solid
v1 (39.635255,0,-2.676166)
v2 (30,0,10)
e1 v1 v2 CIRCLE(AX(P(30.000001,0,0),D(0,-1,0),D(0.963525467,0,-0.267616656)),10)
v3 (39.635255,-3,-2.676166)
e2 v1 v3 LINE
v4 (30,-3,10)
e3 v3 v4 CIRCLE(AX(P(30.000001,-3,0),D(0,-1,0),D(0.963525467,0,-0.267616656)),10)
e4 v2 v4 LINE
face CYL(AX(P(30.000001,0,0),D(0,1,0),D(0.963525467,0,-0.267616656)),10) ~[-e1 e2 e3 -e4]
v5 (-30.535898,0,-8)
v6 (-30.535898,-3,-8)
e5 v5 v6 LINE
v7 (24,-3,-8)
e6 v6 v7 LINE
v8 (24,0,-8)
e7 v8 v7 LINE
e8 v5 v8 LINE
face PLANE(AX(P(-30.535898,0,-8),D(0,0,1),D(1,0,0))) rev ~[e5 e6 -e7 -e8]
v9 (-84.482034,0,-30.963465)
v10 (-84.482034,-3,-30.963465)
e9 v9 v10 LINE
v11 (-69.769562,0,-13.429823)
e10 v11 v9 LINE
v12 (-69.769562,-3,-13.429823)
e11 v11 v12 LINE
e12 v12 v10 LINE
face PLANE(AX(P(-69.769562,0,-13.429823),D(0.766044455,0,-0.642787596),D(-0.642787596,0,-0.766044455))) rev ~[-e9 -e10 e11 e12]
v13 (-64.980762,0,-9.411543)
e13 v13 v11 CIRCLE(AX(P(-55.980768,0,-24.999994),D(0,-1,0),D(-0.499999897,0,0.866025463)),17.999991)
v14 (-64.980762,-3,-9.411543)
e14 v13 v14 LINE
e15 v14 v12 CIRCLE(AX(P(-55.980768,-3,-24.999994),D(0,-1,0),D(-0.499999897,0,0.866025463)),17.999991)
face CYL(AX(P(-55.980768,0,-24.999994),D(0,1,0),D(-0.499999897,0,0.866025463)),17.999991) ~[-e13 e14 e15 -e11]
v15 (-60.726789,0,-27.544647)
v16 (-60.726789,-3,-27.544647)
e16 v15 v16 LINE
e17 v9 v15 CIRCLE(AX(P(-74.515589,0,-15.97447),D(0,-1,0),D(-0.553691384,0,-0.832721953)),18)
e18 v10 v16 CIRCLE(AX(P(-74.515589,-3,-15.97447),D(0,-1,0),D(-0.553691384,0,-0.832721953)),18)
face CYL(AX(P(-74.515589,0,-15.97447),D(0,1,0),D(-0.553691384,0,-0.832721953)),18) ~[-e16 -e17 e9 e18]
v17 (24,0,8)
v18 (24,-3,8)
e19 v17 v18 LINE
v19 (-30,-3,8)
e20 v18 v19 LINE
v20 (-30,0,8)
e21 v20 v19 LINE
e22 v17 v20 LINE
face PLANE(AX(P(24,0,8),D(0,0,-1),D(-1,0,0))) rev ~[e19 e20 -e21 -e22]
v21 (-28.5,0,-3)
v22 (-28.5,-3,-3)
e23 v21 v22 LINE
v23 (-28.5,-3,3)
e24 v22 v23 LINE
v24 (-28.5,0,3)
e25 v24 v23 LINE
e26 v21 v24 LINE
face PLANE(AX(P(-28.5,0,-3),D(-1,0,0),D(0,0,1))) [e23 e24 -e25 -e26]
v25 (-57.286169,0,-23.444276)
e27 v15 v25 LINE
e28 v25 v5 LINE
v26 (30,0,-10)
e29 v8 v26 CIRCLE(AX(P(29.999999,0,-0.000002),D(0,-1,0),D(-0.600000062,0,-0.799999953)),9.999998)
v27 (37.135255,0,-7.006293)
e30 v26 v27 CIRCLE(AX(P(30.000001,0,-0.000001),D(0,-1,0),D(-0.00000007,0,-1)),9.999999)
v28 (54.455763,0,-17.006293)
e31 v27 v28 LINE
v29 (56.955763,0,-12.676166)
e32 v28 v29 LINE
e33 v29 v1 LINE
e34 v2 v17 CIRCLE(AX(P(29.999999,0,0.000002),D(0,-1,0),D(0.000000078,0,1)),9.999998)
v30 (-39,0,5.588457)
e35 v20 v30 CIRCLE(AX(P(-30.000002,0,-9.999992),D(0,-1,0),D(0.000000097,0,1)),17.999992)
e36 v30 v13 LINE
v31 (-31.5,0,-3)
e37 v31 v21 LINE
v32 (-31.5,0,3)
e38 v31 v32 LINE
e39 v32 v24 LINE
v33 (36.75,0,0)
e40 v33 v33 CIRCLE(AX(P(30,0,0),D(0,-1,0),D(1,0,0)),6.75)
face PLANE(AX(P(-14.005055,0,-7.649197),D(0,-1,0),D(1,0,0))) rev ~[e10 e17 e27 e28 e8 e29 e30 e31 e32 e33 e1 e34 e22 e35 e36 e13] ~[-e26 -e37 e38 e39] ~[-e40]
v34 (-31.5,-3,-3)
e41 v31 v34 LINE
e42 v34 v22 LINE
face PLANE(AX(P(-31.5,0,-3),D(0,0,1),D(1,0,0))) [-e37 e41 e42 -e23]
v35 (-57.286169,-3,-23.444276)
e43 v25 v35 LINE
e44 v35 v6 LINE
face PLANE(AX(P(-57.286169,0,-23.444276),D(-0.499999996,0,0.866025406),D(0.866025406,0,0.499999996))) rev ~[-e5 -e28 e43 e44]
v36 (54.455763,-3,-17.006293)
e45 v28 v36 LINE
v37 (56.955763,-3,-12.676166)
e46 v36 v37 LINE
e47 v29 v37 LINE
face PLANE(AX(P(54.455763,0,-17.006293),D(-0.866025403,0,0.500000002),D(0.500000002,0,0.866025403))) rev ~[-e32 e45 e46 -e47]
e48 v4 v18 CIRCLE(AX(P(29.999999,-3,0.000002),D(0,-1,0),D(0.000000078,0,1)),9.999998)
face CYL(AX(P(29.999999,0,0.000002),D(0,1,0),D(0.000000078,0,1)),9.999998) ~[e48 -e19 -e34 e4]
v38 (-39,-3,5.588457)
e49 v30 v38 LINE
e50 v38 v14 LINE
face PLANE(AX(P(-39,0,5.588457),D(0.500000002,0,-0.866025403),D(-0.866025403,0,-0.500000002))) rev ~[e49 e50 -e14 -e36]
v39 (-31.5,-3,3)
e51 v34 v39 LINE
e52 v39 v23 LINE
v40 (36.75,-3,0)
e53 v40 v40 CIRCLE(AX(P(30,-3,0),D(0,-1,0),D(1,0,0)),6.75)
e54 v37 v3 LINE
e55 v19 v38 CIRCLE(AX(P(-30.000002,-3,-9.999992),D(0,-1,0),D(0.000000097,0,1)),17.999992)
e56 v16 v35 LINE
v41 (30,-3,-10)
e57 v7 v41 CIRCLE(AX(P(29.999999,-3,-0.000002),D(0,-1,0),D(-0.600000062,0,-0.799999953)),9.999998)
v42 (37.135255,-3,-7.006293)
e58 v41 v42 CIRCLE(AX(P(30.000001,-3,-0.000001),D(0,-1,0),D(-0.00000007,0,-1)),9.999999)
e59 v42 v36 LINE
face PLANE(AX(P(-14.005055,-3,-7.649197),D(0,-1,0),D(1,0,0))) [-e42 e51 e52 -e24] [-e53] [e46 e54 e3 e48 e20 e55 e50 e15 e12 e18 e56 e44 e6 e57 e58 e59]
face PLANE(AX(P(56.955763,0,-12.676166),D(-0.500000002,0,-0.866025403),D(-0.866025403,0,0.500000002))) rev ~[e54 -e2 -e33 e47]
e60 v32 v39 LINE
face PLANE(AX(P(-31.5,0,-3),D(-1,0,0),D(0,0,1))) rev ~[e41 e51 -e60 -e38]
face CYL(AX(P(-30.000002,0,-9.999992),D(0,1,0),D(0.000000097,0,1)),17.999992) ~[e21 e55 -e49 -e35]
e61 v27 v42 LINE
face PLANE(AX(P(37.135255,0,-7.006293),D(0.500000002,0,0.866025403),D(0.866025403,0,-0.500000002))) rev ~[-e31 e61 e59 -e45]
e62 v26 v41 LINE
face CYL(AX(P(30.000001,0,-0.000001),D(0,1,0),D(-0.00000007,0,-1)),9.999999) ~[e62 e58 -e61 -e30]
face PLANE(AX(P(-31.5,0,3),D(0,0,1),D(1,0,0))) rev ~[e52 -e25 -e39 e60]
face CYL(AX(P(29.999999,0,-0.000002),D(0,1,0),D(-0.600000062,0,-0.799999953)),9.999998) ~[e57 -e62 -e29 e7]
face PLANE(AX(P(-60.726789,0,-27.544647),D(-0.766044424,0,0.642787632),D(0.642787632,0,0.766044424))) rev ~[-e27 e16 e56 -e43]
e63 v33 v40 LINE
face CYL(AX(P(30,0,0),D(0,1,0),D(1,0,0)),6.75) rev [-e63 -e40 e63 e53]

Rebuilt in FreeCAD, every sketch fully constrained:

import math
import FreeCAD as App
import Part
import Sketcher
Q = App.Units.Quantity

doc = App.newDocument("Part")
body = doc.addObject("PartDesign::Body", "Body")

sketch1 = body.newObject("Sketcher::SketchObject", "Sketch")
sketch1.AttachmentSupport = (doc.getObject("XZ_Plane"), [""])
sketch1.MapMode = "FlatFace"
sketch1.addGeometry([
    Part.LineSegment(App.Vector(-57.3, -23.4, 0), App.Vector(-30.5, -8, 0)),
    Part.LineSegment(App.Vector(-30.5, -8, 0), App.Vector(24, -8, 0)),
    Part.ArcOfCircle(Part.Circle(App.Vector(30, 0, 0), App.Vector(0, 0, 1), 10), math.radians(-127), math.radians(-90)),
    Part.ArcOfCircle(Part.Circle(App.Vector(30, 0, 0), App.Vector(0, 0, 1), 10), math.radians(-90), math.radians(-44)),
    Part.LineSegment(App.Vector(37.1, -7, 0), App.Vector(54.5, -17, 0)),
    Part.LineSegment(App.Vector(54.5, -17, 0), App.Vector(57, -12.7, 0)),
    Part.LineSegment(App.Vector(57, -12.7, 0), App.Vector(39.6, -2.7, 0)),
    Part.ArcOfCircle(Part.Circle(App.Vector(30, 0, 0), App.Vector(0, 0, 1), 10), math.radians(-16), math.radians(90)),
    Part.ArcOfCircle(Part.Circle(App.Vector(30, 0, 0), App.Vector(0, 0, 1), 10), math.radians(90), math.radians(127)),
    Part.LineSegment(App.Vector(24, 8, 0), App.Vector(-30, 8, 0)),
    Part.ArcOfCircle(Part.Circle(App.Vector(-30, -10, 0), App.Vector(0, 0, 1), 18), math.radians(90), math.radians(120)),
    Part.LineSegment(App.Vector(-39, 5.6, 0), App.Vector(-65, -9.4, 0)),
    Part.ArcOfCircle(Part.Circle(App.Vector(-56, -25, 0), App.Vector(0, 0, 1), 18), math.radians(120), math.radians(140)),
    Part.LineSegment(App.Vector(-69.8, -13.4, 0), App.Vector(-84.5, -31, 0)),
    Part.ArcOfCircle(Part.Circle(App.Vector(-74.5, -16, 0), App.Vector(0, 0, 1), 18), math.radians(-124), math.radians(-40)),
    Part.LineSegment(App.Vector(-60.7, -27.5, 0), App.Vector(-57.3, -23.4, 0)),
    Part.LineSegment(App.Vector(-28.5, -3, 0), App.Vector(-31.5, -3, 0)),
    Part.LineSegment(App.Vector(-31.5, -3, 0), App.Vector(-31.5, 3, 0)),
    Part.LineSegment(App.Vector(-31.5, 3, 0), App.Vector(-28.5, 3, 0)),
    Part.LineSegment(App.Vector(-28.5, 3, 0), App.Vector(-28.5, -3, 0)),
    Part.Circle(App.Vector(30, 0, 0), App.Vector(0, 0, 1), 6.8),
], False)
sketch1.addConstraint([
    Sketcher.Constraint("Coincident", 0, 2, 1, 1),
    Sketcher.Constraint("Coincident", 1, 2, 2, 1),
    Sketcher.Constraint("Tangent", 2, 2, 3, 1),
    Sketcher.Constraint("Coincident", 3, 2, 4, 1),
    Sketcher.Constraint("Coincident", 4, 2, 5, 1),
    Sketcher.Constraint("Coincident", 5, 2, 6, 1),
    Sketcher.Constraint("Coincident", 6, 2, 7, 1),
    Sketcher.Constraint("Tangent", 7, 2, 8, 1),
    Sketcher.Constraint("Coincident", 8, 2, 9, 1),
    Sketcher.Constraint("Tangent", 9, 2, 10, 1),
    Sketcher.Constraint("Tangent", 10, 2, 11, 1),
    Sketcher.Constraint("Tangent", 11, 2, 12, 1),
    Sketcher.Constraint("Tangent", 12, 2, 13, 1),
    Sketcher.Constraint("Coincident", 13, 2, 14, 1),
    Sketcher.Constraint("Tangent", 14, 2, 15, 1),
    Sketcher.Constraint("Coincident", 15, 2, 0, 1),
    Sketcher.Constraint("Coincident", 16, 2, 17, 1),
    Sketcher.Constraint("Coincident", 17, 2, 18, 1),
    Sketcher.Constraint("Coincident", 18, 2, 19, 1),
    Sketcher.Constraint("Coincident", 19, 2, 16, 1),
    Sketcher.Constraint("Horizontal", 1),
    Sketcher.Constraint("Horizontal", 9),
    Sketcher.Constraint("Horizontal", 16),
    Sketcher.Constraint("Vertical", 17),
    Sketcher.Constraint("Horizontal", 18),
    Sketcher.Constraint("Vertical", 19),
    Sketcher.Constraint("Coincident", 7, 3, 2, 3),
    Sketcher.Constraint("Coincident", 20, 3, 2, 3),
    Sketcher.Constraint("Equal", 2, 3),
    Sketcher.Constraint("Equal", 3, 7),
    Sketcher.Constraint("Equal", 7, 8),
    Sketcher.Constraint("Equal", 10, 12),
    Sketcher.Constraint("Symmetric", 2, 2, 7, 2, -1),
    Sketcher.Constraint("Perpendicular", 4, 5),
    Sketcher.Constraint("Perpendicular", 5, 6),
    Sketcher.Constraint("Parallel", 0, 11),
    Sketcher.Constraint("Parallel", 13, 15),
    Sketcher.Constraint("Vertical", 20, 3, 2, 2),
    Sketcher.Constraint("Vertical", 1, 2, 8, 2),
    Sketcher.Constraint("Equal", 4, 6),
    Sketcher.Constraint("Radius", 3, 9.999999),
    Sketcher.Constraint("Radius", 14, 18.0),
    Sketcher.Constraint("Diameter", 20, 13.5),
    Sketcher.Constraint("DistanceX", 9, 2, 9, 1, 54.0),
    Sketcher.Constraint("DistanceX", 16, 2, 16, 1, 3.0),
    Sketcher.Constraint("DistanceY", 17, 1, 17, 2, 6.0),
    Sketcher.Constraint("Angle", 0, Q("30 deg")),
    Sketcher.Constraint("Angle", 4, Q("-30 deg")),
    Sketcher.Constraint("Angle", 13, Q("-129.999999 deg")),
    Sketcher.Constraint("Distance", 4, 20.0),
    Sketcher.Constraint("Distance", 5, 5.0),
    Sketcher.Constraint("Distance", 11, 30.0),
    Sketcher.Constraint("DistanceX", -1, 1, 2, 3, 29.999999),
    Sketcher.Constraint("DistanceX", 10, 3, -1, 1, 30.000002),
    Sketcher.Constraint("DistanceX", 10, 2, -1, 1, 39.0),
    Sketcher.Constraint("DistanceY", 16, 2, -1, 1, 3.0),
    Sketcher.Constraint("DistanceX", 16, 2, -1, 1, 31.5),
    Sketcher.Constraint("DistanceX", 1, 1, 1, 2, 54.535898),
    Sketcher.Constraint("DistanceX", 15, 2, 12, 3, 1.305401),
    Sketcher.Constraint("DistanceX", 14, 3, -1, 1, 74.515589),
])
pad1 = body.newObject("PartDesign::Pad", "Pad")
pad1.Profile = sketch1
pad1.Length = 3

doc.recompute()
